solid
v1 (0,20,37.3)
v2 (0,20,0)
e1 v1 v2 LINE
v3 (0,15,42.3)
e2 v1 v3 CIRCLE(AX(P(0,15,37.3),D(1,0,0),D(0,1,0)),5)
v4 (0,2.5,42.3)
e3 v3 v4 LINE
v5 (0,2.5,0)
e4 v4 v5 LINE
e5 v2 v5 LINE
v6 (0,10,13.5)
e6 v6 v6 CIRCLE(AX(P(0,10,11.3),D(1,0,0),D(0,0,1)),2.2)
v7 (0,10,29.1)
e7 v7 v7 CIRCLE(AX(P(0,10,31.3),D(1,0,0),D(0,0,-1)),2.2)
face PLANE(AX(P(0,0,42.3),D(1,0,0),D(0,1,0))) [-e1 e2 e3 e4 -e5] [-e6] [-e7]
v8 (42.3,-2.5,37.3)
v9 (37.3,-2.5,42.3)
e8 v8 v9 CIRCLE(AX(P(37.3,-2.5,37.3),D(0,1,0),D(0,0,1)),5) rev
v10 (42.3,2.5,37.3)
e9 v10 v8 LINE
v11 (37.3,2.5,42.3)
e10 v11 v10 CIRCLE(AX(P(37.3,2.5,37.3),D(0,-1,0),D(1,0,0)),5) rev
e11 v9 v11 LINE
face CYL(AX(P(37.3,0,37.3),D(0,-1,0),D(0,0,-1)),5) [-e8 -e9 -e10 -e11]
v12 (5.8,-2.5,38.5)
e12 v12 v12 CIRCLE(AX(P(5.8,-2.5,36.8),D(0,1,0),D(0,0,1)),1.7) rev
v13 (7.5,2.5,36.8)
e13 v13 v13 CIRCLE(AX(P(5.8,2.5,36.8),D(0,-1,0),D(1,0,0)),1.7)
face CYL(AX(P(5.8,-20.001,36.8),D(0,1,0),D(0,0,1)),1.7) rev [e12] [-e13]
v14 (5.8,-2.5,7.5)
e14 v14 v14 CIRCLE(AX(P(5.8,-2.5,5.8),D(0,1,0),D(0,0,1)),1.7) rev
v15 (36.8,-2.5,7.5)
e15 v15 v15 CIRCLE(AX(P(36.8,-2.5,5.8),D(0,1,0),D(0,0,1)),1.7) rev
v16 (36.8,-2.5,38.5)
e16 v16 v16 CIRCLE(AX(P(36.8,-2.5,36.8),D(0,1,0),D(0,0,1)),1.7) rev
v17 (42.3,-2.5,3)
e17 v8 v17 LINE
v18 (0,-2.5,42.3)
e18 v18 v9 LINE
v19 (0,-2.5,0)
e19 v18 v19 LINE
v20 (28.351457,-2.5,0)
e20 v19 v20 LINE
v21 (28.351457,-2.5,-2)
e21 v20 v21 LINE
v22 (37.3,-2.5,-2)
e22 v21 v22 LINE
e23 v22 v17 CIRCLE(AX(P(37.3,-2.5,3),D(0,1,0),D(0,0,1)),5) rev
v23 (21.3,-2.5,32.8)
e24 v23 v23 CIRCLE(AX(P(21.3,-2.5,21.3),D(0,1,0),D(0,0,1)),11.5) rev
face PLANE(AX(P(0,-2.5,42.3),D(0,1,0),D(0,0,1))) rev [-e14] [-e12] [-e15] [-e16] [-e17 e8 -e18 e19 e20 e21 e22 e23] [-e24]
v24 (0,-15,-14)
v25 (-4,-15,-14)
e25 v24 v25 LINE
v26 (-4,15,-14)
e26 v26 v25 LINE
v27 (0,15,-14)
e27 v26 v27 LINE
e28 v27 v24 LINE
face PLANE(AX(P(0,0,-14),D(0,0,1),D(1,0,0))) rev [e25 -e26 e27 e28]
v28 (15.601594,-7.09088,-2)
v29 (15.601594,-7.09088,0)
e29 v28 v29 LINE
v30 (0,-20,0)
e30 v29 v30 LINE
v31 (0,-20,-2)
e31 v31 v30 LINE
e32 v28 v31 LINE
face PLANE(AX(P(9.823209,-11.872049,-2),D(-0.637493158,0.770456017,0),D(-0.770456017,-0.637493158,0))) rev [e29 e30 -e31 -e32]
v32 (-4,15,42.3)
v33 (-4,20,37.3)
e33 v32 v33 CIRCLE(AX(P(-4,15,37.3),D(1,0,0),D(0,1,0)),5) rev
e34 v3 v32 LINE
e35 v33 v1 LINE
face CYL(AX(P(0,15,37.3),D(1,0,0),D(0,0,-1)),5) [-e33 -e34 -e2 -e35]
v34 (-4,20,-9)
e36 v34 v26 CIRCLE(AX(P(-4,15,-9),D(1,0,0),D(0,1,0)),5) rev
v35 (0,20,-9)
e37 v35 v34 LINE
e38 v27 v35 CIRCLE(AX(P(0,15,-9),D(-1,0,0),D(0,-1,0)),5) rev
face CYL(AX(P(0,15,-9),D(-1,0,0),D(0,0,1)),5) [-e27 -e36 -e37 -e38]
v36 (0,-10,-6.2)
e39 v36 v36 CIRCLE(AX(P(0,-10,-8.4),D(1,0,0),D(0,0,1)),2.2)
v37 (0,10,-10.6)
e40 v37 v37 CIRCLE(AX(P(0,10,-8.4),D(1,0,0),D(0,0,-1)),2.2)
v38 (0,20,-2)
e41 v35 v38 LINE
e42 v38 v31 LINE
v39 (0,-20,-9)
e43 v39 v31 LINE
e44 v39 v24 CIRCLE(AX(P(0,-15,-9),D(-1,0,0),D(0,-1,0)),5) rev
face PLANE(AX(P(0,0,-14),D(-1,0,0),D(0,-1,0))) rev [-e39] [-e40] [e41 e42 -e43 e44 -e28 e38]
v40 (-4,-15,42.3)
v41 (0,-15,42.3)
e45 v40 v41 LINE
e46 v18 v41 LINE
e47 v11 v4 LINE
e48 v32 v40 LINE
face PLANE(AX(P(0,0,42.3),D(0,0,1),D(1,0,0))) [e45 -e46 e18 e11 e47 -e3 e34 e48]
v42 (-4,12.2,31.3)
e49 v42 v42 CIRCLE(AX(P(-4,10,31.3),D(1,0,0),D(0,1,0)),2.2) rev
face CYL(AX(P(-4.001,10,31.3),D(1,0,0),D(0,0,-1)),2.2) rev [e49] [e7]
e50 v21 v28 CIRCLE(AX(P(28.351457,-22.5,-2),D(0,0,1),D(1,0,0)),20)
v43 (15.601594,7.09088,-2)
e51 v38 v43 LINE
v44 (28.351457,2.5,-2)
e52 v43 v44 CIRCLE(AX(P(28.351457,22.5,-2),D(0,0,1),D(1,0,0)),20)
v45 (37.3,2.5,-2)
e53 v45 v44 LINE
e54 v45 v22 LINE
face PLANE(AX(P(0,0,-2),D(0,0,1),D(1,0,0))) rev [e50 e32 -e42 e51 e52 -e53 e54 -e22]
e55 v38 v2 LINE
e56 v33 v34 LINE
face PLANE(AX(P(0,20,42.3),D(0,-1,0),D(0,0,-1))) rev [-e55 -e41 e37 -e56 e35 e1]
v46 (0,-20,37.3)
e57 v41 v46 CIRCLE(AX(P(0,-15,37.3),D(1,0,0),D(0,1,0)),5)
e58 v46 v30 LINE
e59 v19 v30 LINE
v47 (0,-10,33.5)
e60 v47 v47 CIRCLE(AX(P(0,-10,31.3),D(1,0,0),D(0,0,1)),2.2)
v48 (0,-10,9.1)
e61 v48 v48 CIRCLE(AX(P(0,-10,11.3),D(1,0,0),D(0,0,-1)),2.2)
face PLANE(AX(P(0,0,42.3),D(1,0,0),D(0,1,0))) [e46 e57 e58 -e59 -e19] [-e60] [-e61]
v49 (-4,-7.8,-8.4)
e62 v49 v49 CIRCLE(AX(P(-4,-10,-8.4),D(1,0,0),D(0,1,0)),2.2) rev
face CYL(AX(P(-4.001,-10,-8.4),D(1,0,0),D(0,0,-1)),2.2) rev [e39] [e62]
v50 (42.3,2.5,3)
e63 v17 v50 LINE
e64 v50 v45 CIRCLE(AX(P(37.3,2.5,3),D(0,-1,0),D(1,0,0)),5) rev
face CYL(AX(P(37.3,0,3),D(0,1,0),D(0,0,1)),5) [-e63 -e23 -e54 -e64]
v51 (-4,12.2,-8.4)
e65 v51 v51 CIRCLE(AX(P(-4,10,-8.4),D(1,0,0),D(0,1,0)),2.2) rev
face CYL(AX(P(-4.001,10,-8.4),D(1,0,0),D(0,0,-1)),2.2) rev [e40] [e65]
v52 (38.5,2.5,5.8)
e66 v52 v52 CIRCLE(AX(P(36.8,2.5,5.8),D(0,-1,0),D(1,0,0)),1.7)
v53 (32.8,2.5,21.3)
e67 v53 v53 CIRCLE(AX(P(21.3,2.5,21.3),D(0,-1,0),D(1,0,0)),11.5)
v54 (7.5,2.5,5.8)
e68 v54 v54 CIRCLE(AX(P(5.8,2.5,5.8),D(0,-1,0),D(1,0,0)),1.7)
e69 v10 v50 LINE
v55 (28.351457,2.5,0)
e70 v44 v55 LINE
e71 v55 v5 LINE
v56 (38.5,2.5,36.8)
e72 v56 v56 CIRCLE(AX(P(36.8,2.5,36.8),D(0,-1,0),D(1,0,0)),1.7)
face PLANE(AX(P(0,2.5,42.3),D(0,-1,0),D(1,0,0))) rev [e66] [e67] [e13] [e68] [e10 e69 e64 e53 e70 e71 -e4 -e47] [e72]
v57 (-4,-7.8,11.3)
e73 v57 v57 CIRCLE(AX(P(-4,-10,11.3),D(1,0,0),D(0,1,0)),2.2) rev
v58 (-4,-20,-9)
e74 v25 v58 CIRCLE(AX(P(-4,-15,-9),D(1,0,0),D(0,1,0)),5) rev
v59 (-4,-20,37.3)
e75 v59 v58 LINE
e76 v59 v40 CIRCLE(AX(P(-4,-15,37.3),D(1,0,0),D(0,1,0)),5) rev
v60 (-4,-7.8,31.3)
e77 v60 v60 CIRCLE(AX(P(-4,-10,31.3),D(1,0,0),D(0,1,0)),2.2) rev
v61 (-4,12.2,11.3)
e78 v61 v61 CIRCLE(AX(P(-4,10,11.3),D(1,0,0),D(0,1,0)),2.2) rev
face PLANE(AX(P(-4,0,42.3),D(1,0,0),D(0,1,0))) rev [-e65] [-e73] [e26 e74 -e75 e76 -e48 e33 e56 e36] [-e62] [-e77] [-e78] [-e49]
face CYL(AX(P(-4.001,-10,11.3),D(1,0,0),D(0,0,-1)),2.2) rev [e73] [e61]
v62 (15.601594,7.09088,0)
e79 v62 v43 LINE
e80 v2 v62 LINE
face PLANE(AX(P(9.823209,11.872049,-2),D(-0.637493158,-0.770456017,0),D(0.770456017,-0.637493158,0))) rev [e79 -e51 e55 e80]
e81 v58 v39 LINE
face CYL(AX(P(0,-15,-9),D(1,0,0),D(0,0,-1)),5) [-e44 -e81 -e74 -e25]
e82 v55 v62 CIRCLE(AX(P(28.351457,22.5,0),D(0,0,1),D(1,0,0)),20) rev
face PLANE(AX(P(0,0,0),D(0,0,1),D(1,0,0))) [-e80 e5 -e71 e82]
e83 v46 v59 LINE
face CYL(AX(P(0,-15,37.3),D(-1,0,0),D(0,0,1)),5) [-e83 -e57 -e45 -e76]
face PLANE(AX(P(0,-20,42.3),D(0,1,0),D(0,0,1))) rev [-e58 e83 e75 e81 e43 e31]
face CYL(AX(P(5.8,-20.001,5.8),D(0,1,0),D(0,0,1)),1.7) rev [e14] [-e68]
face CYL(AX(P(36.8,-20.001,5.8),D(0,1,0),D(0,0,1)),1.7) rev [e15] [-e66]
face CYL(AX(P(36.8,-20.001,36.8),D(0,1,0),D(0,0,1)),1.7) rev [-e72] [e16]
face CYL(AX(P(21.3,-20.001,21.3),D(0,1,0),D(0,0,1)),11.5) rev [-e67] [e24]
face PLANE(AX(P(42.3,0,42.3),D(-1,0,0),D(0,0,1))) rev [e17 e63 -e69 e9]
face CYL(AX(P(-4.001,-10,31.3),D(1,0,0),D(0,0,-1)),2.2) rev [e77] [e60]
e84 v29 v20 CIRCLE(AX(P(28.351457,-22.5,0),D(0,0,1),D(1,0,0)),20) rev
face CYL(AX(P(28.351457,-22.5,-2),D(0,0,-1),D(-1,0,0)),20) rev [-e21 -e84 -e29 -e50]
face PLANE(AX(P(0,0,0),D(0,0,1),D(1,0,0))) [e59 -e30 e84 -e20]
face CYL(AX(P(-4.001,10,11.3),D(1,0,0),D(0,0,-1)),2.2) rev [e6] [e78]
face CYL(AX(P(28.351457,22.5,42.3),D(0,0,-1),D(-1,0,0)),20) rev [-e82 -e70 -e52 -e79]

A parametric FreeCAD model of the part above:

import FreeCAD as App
import Part
import Sketcher


def edges_at(feature, points):
    """Names of the edges that pass closest to the given points."""
    edges = feature.Shape.Edges
    near = lambda p: min(range(len(edges)), key=lambda i: edges[i].distToShape(Part.Vertex(*p))[0])
    return sorted({f"Edge{near(p) + 1}" for p in points})


def add_polygon(sketch, points):
    """Adds a closed chain of lines whose ends are joined by coincident constraints."""
    first, n = sketch.GeometryCount, len(points)
    for a, b in zip(points, points[1:] + points[:1]):
        sketch.addGeometry(Part.LineSegment(App.Vector(*a, 0), App.Vector(*b, 0)), False)
    for i in range(n):
        sketch.addConstraint(Sketcher.Constraint("Coincident", first + i, 2, first + (i + 1) % n, 1))

doc = App.newDocument("Part")
body = doc.addObject("PartDesign::Body", "Body")

sketch1 = body.newObject("Sketcher::SketchObject", "Sketch")
sketch1.AttachmentSupport = (doc.getObject("XY_Plane"), [""])
sketch1.MapMode = "FlatFace"
add_polygon(sketch1, [(0, -20), (0, -2.5), (42.3, -2.5), (42.3, 2.5), (0, 2.5), (0, 20), (-4, 20), (-4, -20)])
sketch1.addConstraint([
    Sketcher.Constraint("Vertical", 0),
    Sketcher.Constraint("Horizontal", 1),
    Sketcher.Constraint("Vertical", 2),
    Sketcher.Constraint("Horizontal", 3),
    Sketcher.Constraint("Vertical", 4),
    Sketcher.Constraint("Horizontal", 5),
    Sketcher.Constraint("Vertical", 6),
    Sketcher.Constraint("Horizontal", 7),
    Sketcher.Constraint("Symmetric", 0, 2, 3, 2, -1, 1),
    Sketcher.Constraint("Symmetric", 4, 2, 7, 2, -1),
    Sketcher.Constraint("DistanceX", 5, 2, 5, 1, 4.0),
    Sketcher.Constraint("DistanceY", 2, 1, 2, 2, 5.0),
    Sketcher.Constraint("DistanceY", 6, 2, 6, 1, 40.0),
    Sketcher.Constraint("DistanceX", 1, 1, 1, 2, 42.3),
])
pad1 = body.newObject("PartDesign::Pad", "Pad")
pad1.Profile = sketch1
pad1.Length = 42.3

sketch2 = body.newObject("Sketcher::SketchObject", "Sketch001")
sketch2.AttachmentSupport = (doc.getObject("XZ_Plane"), [""])
sketch2.MapMode = "FlatFace"
sketch2.addGeometry(Part.Circle(App.Vector(21, 21, 0), App.Vector(0, 0, 1), 12), False)
sketch2.addConstraint([
    Sketcher.Constraint("Diameter", 0, 23.0),
    Sketcher.Constraint("DistanceX", -1, 1, 0, 3, 21.3),
    Sketcher.Constraint("DistanceY", -1, 1, 0, 3, 21.3),
])
pocket1 = body.newObject("PartDesign::Pocket", "Pocket")
pocket1.Profile = sketch2
pocket1.Type = "UpToFirst"

sketch3 = body.newObject("Sketcher::SketchObject", "Sketch002")
sketch3.AttachmentSupport = (doc.getObject("XZ_Plane"), [""])
sketch3.MapMode = "FlatFace"
sketch3.addGeometry(Part.Circle(App.Vector(36.8, 5.8, 0), App.Vector(0, 0, 1), 1.7), False)
sketch3.addConstraint([
    Sketcher.Constraint("Diameter", 0, 3.4),
    Sketcher.Constraint("DistanceX", -1, 1, 0, 3, 36.8),
    Sketcher.Constraint("DistanceY", -1, 1, 0, 3, 5.8),
])
pocket2 = body.newObject("PartDesign::Pocket", "Pocket001")
pocket2.Profile = sketch3
pocket2.Type = "UpToFirst"

sketch4 = body.newObject("Sketcher::SketchObject", "Sketch003")
sketch4.AttachmentSupport = (doc.getObject("XZ_Plane"), [""])
sketch4.MapMode = "FlatFace"
sketch4.addGeometry(Part.Circle(App.Vector(36.8, 36.8, 0), App.Vector(0, 0, 1), 1.7), False)
sketch4.addConstraint([
    Sketcher.Constraint("Diameter", 0, 3.4),
    Sketcher.Constraint("DistanceX", -1, 1, 0, 3, 36.8),
    Sketcher.Constraint("DistanceY", -1, 1, 0, 3, 36.8),
])
pocket3 = body.newObject("PartDesign::Pocket", "Pocket002")
pocket3.Profile = sketch4
pocket3.Type = "UpToFirst"

sketch5 = body.newObject("Sketcher::SketchObject", "Sketch004")
sketch5.AttachmentSupport = (doc.getObject("XZ_Plane"), [""])
sketch5.MapMode = "FlatFace"
sketch5.addGeometry(Part.Circle(App.Vector(5.8, 36.8, 0), App.Vector(0, 0, 1), 1.7), False)
sketch5.addConstraint([
    Sketcher.Constraint("Diameter", 0, 3.4),
    Sketcher.Constraint("DistanceX", -1, 1, 0, 3, 5.8),
    Sketcher.Constraint("DistanceY", -1, 1, 0, 3, 36.8),
])
pocket4 = body.newObject("PartDesign::Pocket", "Pocket003")
pocket4.Profile = sketch5
pocket4.Type = "UpToFirst"

sketch6 = body.newObject("Sketcher::SketchObject", "Sketch005")
sketch6.AttachmentSupport = (doc.getObject("XZ_Plane"), [""])
sketch6.MapMode = "FlatFace"
sketch6.addGeometry(Part.Circle(App.Vector(5.8, 5.8, 0), App.Vector(0, 0, 1), 1.7), False)
sketch6.addConstraint([
    Sketcher.Constraint("Diameter", 0, 3.4),
    Sketcher.Constraint("DistanceX", -1, 1, 0, 3, 5.8),
    Sketcher.Constraint("DistanceY", -1, 1, 0, 3, 5.8),
])
pocket5 = body.newObject("PartDesign::Pocket", "Pocket004")
pocket5.Profile = sketch6
pocket5.Type = "UpToFirst"

sketch7 = body.newObject("Sketcher::SketchObject", "Sketch006")
sketch7.AttachmentSupport = (doc.getObject("XZ_Plane"), [""])
sketch7.MapMode = "FlatFace"
sketch7.addGeometry(Part.Circle(App.Vector(21, 21, 0), App.Vector(0, 0, 1), 12), False)
sketch7.addConstraint([
    Sketcher.Constraint("Diameter", 0, 23.0),
    Sketcher.Constraint("DistanceX", -1, 1, 0, 3, 21.3),
    Sketcher.Constraint("DistanceY", -1, 1, 0, 3, 21.3),
])
pocket6 = body.newObject("PartDesign::Pocket", "Pocket005")
pocket6.Profile = sketch7
pocket6.Type = "UpToFirst"
pocket6.Reversed = True

sketch8 = body.newObject("Sketcher::SketchObject", "Sketch007")
sketch8.AttachmentSupport = (doc.getObject("XZ_Plane"), [""])
sketch8.MapMode = "FlatFace"
sketch8.addGeometry(Part.Circle(App.Vector(36.8, 5.8, 0), App.Vector(0, 0, 1), 1.7), False)
sketch8.addConstraint([
    Sketcher.Constraint("Diameter", 0, 3.4),
    Sketcher.Constraint("DistanceX", -1, 1, 0, 3, 36.8),
    Sketcher.Constraint("DistanceY", -1, 1, 0, 3, 5.8),
])
pocket7 = body.newObject("PartDesign::Pocket", "Pocket006")
pocket7.Profile = sketch8
pocket7.Type = "UpToFirst"
pocket7.Reversed = True

sketch9 = body.newObject("Sketcher::SketchObject", "Sketch008")
sketch9.AttachmentSupport = (doc.getObject("XZ_Plane"), [""])
sketch9.MapMode = "FlatFace"
sketch9.addGeometry(Part.Circle(App.Vector(36.8, 36.8, 0), App.Vector(0, 0, 1), 1.7), False)
sketch9.addConstraint([
    Sketcher.Constraint("Diameter", 0, 3.4),
    Sketcher.Constraint("DistanceX", -1, 1, 0, 3, 36.8),
    Sketcher.Constraint("DistanceY", -1, 1, 0, 3, 36.8),
])
pocket8 = body.newObject("PartDesign::Pocket", "Pocket007")
pocket8.Profile = sketch9
pocket8.Type = "UpToFirst"
pocket8.Reversed = True

sketch10 = body.newObject("Sketcher::SketchObject", "Sketch009")
sketch10.AttachmentSupport = (doc.getObject("XZ_Plane"), [""])
sketch10.MapMode = "FlatFace"
sketch10.addGeometry(Part.Circle(App.Vector(5.8, 36.8, 0), App.Vector(0, 0, 1), 1.7), False)
sketch10.addConstraint([
    Sketcher.Constraint("Diameter", 0, 3.4),
    Sketcher.Constraint("DistanceX", -1, 1, 0, 3, 5.8),
    Sketcher.Constraint("DistanceY", -1, 1, 0, 3, 36.8),
])
pocket9 = body.newObject("PartDesign::Pocket", "Pocket008")
pocket9.Profile = sketch10
pocket9.Type = "UpToFirst"
pocket9.Reversed = True

sketch11 = body.newObject("Sketcher::SketchObject", "Sketch010")
sketch11.AttachmentSupport = (doc.getObject("XZ_Plane"), [""])
sketch11.MapMode = "FlatFace"
sketch11.addGeometry(Part.Circle(App.Vector(5.8, 5.8, 0), App.Vector(0, 0, 1), 1.7), False)
sketch11.addConstraint([
    Sketcher.Constraint("Diameter", 0, 3.4),
    Sketcher.Constraint("DistanceX", -1, 1, 0, 3, 5.8),
    Sketcher.Constraint("DistanceY", -1, 1, 0, 3, 5.8),
])
pocket10 = body.newObject("PartDesign::Pocket", "Pocket009")
pocket10.Profile = sketch11
pocket10.Type = "UpToFirst"
pocket10.Reversed = True

sketch12 = body.newObject("Sketcher::SketchObject", "Sketch011")
sketch12.AttachmentSupport = (doc.getObject("XY_Plane"), [""])
sketch12.MapMode = "FlatFace"
add_polygon(sketch12, [(0, -20), (21.1, -2.5), (42.3, -2.5), (42.3, 2.5), (21.1, 2.5), (0, 20), (-4, 20), (-4, -20)])
sketch12.addConstraint([
    Sketcher.Constraint("Horizontal", 1),
    Sketcher.Constraint("Vertical", 2),
    Sketcher.Constraint("Horizontal", 3),
    Sketcher.Constraint("Horizontal", 5),
    Sketcher.Constraint("Vertical", 6),
    Sketcher.Constraint("Horizontal", 7),
    Sketcher.Constraint("Symmetric", 4, 2, 7, 2, -1, 1),
    Sketcher.Constraint("Symmetric", 0, 2, 3, 2, -1),
    Sketcher.Constraint("PointOnObject", 4, 2, -2),
    Sketcher.Constraint("DistanceX", 5, 2, 5, 1, 4.0),
    Sketcher.Constraint("DistanceY", 2, 1, 2, 2, 5.0),
    Sketcher.Constraint("DistanceY", 6, 2, 6, 1, 40.0),
    Sketcher.Constraint("DistanceX", 1, 1, 1, 2, 21.15),
    Sketcher.Constraint("DistanceX", -1, 1, 1, 2, 42.3),
])
pad2 = body.newObject("PartDesign::Pad", "Pad001")
pad2.Profile = sketch12
pad2.Length = 2
pad2.Reversed = True

sketch13 = body.newObject("Sketcher::SketchObject", "Sketch012")
sketch13.AttachmentSupport = (doc.getObject("XY_Plane"), [""])
sketch13.MapMode = "FlatFace"
sketch13.AttachmentOffset = App.Placement(App.Vector(0, 0, -2), App.Rotation())
add_polygon(sketch13, [(0, 20), (-4, 20), (-4, -20), (0, -20)])
sketch13.addConstraint([
    Sketcher.Constraint("Horizontal", 0),
    Sketcher.Constraint("Vertical", 1),
    Sketcher.Constraint("Horizontal", 2),
    Sketcher.Constraint("Vertical", 3),
    Sketcher.Constraint("Symmetric", 2, 2, 3, 2, -1, 1),
    Sketcher.Constraint("DistanceX", 0, 2, 0, 1, 4.0),
    Sketcher.Constraint("DistanceY", 1, 2, 1, 1, 40.0),
])
pad3 = body.newObject("PartDesign::Pad", "Pad002")
pad3.Profile = sketch13
pad3.Length = 12
pad3.Reversed = True

sketch14 = body.newObject("Sketcher::SketchObject", "Sketch013")
sketch14.AttachmentSupport = (doc.getObject("YZ_Plane"), [""])
sketch14.MapMode = "FlatFace"
sketch14.addGeometry(Part.Circle(App.Vector(10, -8.4, 0), App.Vector(0, 0, 1), 2.2), False)
sketch14.addConstraint([
    Sketcher.Constraint("Diameter", 0, 4.4),
    Sketcher.Constraint("DistanceX", -1, 1, 0, 3, 10.0),
    Sketcher.Constraint("DistanceY", 0, 3, -1, 1, 8.4),
])
pocket11 = body.newObject("PartDesign::Pocket", "Pocket010")
pocket11.Profile = sketch14
pocket11.Type = "UpToFirst"

sketch15 = body.newObject("Sketcher::SketchObject", "Sketch014")
sketch15.AttachmentSupport = (doc.getObject("YZ_Plane"), [""])
sketch15.MapMode = "FlatFace"
sketch15.addGeometry(Part.Circle(App.Vector(-10, -8.4, 0), App.Vector(0, 0, 1), 2.2), False)
sketch15.addConstraint([
    Sketcher.Constraint("Diameter", 0, 4.4),
    Sketcher.Constraint("DistanceX", 0, 3, -1, 1, 10.0),
    Sketcher.Constraint("DistanceY", 0, 3, -1, 1, 8.4),
])
pocket12 = body.newObject("PartDesign::Pocket", "Pocket011")
pocket12.Profile = sketch15
pocket12.Type = "UpToFirst"

sketch16 = body.newObject("Sketcher::SketchObject", "Sketch015")
sketch16.AttachmentSupport = (doc.getObject("YZ_Plane"), [""])
sketch16.MapMode = "FlatFace"
sketch16.addGeometry(Part.Circle(App.Vector(10, 11.3, 0), App.Vector(0, 0, 1), 2.2), False)
sketch16.addConstraint([
    Sketcher.Constraint("Diameter", 0, 4.4),
    Sketcher.Constraint("DistanceX", -1, 1, 0, 3, 10.0),
    Sketcher.Constraint("DistanceY", -1, 1, 0, 3, 11.3),
])
pocket13 = body.newObject("PartDesign::Pocket", "Pocket012")
pocket13.Profile = sketch16
pocket13.Type = "UpToFirst"

sketch17 = body.newObject("Sketcher::SketchObject", "Sketch016")
sketch17.AttachmentSupport = (doc.getObject("YZ_Plane"), [""])
sketch17.MapMode = "FlatFace"
sketch17.addGeometry(Part.Circle(App.Vector(-10, 11.3, 0), App.Vector(0, 0, 1), 2.2), False)
sketch17.addConstraint([
    Sketcher.Constraint("Diameter", 0, 4.4),
    Sketcher.Constraint("DistanceX", 0, 3, -1, 1, 10.0),
    Sketcher.Constraint("DistanceY", -1, 1, 0, 3, 11.3),
])
pocket14 = body.newObject("PartDesign::Pocket", "Pocket013")
pocket14.Profile = sketch17
pocket14.Type = "UpToFirst"

sketch18 = body.newObject("Sketcher::SketchObject", "Sketch017")
sketch18.AttachmentSupport = (doc.getObject("YZ_Plane"), [""])
sketch18.MapMode = "FlatFace"
sketch18.addGeometry(Part.Circle(App.Vector(10, 31.3, 0), App.Vector(0, 0, 1), 2.2), False)
sketch18.addConstraint([
    Sketcher.Constraint("Diameter", 0, 4.4),
    Sketcher.Constraint("DistanceX", -1, 1, 0, 3, 10.0),
    Sketcher.Constraint("DistanceY", -1, 1, 0, 3, 31.3),
])
pocket15 = body.newObject("PartDesign::Pocket", "Pocket014")
pocket15.Profile = sketch18
pocket15.Type = "UpToFirst"

sketch19 = body.newObject("Sketcher::SketchObject", "Sketch018")
sketch19.AttachmentSupport = (doc.getObject("YZ_Plane"), [""])
sketch19.MapMode = "FlatFace"
sketch19.addGeometry(Part.Circle(App.Vector(-10, 31.3, 0), App.Vector(0, 0, 1), 2.2), False)
sketch19.addConstraint([
    Sketcher.Constraint("Diameter", 0, 4.4),
    Sketcher.Constraint("DistanceX", 0, 3, -1, 1, 10.0),
    Sketcher.Constraint("DistanceY", -1, 1, 0, 3, 31.3),
])
pocket16 = body.newObject("PartDesign::Pocket", "Pocket015")
pocket16.Profile = sketch19
pocket16.Type = "UpToFirst"
doc.recompute()

fillet = body.newObject("PartDesign::Fillet", "Fillet")
fillet.Base = (pocket16, edges_at(pocket16, [
    (42.3, 0, 42.3),
    (-2, 20, 42.3),
    (-2, -20, 42.3),
    (42.3, 0, -2),
    (-2, -20, -14),
    (-2, 20, -14),
]))
fillet.Radius = 5
doc.recompute()

fillet2 = body.newObject("PartDesign::Fillet", "Fillet001")
fillet2.Base = (fillet, edges_at(fillet, [(21.15, 2.5, -1), (21.15, -2.5, -1)]))
fillet2.Radius = 20

doc.recompute()
